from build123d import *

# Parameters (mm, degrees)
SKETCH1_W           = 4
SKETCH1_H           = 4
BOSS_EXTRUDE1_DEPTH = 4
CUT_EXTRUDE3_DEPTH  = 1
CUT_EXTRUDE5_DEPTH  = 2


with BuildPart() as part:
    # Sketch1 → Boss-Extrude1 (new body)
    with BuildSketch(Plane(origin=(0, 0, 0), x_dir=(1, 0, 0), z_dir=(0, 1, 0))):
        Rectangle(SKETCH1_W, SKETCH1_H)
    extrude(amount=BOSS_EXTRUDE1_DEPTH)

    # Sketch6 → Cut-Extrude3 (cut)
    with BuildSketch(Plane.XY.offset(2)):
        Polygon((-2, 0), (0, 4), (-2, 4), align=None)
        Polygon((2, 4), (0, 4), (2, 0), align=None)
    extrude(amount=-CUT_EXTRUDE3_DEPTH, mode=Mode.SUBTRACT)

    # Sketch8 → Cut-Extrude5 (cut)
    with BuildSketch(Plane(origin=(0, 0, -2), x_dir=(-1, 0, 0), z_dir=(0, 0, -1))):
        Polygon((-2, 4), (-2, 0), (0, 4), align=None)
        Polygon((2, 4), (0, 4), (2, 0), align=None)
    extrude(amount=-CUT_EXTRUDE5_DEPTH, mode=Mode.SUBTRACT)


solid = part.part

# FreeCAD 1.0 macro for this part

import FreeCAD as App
import Part
import Sketcher
from FreeCAD import Vector
Q = App.Units.Quantity

doc = App.newDocument("Part")
body = doc.addObject("PartDesign::Body", "Body")

# Sketch on XZ plane
sketch1 = body.newObject("Sketcher::SketchObject", "Sketch")
sketch1.AttachmentSupport = (doc.getObject("XZ_Plane"), [""])
sketch1.MapMode = "FlatFace"
sketch1.addGeometry(Part.LineSegment(Vector(-2, -2, 0), Vector(-2, 2, 0)), False)
sketch1.addGeometry(Part.LineSegment(Vector(-2, 2, 0), Vector(2, 2, 0)), False)
sketch1.addGeometry(Part.LineSegment(Vector(2, 2, 0), Vector(2, -2, 0)), False)
sketch1.addGeometry(Part.LineSegment(Vector(2, -2, 0), Vector(-2, -2, 0)), False)
sketch1.addConstraint(Sketcher.Constraint("Coincident", 0, 2, 1, 1))
sketch1.addConstraint(Sketcher.Constraint("Coincident", 1, 2, 2, 1))
sketch1.addConstraint(Sketcher.Constraint("Coincident", 2, 2, 3, 1))
sketch1.addConstraint(Sketcher.Constraint("Coincident", 3, 2, 0, 1))
sketch1.addConstraint(Sketcher.Constraint("Vertical", 0))
sketch1.addConstraint(Sketcher.Constraint("Horizontal", 1))
sketch1.addConstraint(Sketcher.Constraint("Vertical", 2))
sketch1.addConstraint(Sketcher.Constraint("Horizontal", 3))
sketch1.addConstraint(Sketcher.Constraint("Symmetric", 0, 2, 2, 2, -1, 1))
sketch1.addConstraint(Sketcher.Constraint("Equal", 3, 0))
sketch1.addConstraint(Sketcher.Constraint("DistanceX", 1, 1, 1, 2, Q("4 mm")))
pad1 = body.newObject("PartDesign::Pad", "Pad")
pad1.Profile = sketch1
pad1.Length = 4
pad1.Reversed = True

# Sketch on XY plane
sketch2 = body.newObject("Sketcher::SketchObject", "Sketch001")
sketch2.AttachmentSupport = (doc.getObject("XY_Plane"), [""])
sketch2.MapMode = "FlatFace"
sketch2.AttachmentOffset = App.Placement(Vector(0, 0, 2), App.Rotation())
sketch2.addGeometry(Part.LineSegment(Vector(-2, 0, 0), Vector(0, 4, 0)), False)
sketch2.addGeometry(Part.LineSegment(Vector(0, 4, 0), Vector(-2, 4, 0)), False)
sketch2.addGeometry(Part.LineSegment(Vector(-2, 4, 0), Vector(-2, 0, 0)), False)
sketch2.addGeometry(Part.LineSegment(Vector(2, 4, 0), Vector(0, 4, 0)), False)
sketch2.addGeometry(Part.LineSegment(Vector(0, 4, 0), Vector(2, 0, 0)), False)
sketch2.addGeometry(Part.LineSegment(Vector(2, 0, 0), Vector(2, 4, 0)), False)
sketch2.addConstraint(Sketcher.Constraint("Coincident", 0, 2, 1, 1))
sketch2.addConstraint(Sketcher.Constraint("Coincident", 1, 2, 2, 1))
sketch2.addConstraint(Sketcher.Constraint("Coincident", 2, 2, 0, 1))
sketch2.addConstraint(Sketcher.Constraint("Coincident", 3, 2, 4, 1))
sketch2.addConstraint(Sketcher.Constraint("Coincident", 4, 2, 5, 1))
sketch2.addConstraint(Sketcher.Constraint("Coincident", 5, 2, 3, 1))
sketch2.addConstraint(Sketcher.Constraint("Horizontal", 1))
sketch2.addConstraint(Sketcher.Constraint("Vertical", 2))
sketch2.addConstraint(Sketcher.Constraint("Horizontal", 3))
sketch2.addConstraint(Sketcher.Constraint("Vertical", 5))
sketch2.addConstraint(Sketcher.Constraint("Coincident", 3, 2, 0, 2))
sketch2.addConstraint(Sketcher.Constraint("Symmetric", 2, 2, 4, 2, -1, 1))
sketch2.addConstraint(Sketcher.Constraint("PointOnObject", 0, 2, -2))
sketch2.addConstraint(Sketcher.Constraint("PointOnObject", 2, 2, -1))
sketch2.addConstraint(Sketcher.Constraint("DistanceX", 1, 2, 1, 1, Q("2 mm")))
sketch2.addConstraint(Sketcher.Constraint("DistanceY", 2, 2, 2, 1, Q("4 mm")))
pocket1 = body.newObject("PartDesign::Pocket", "Pocket")
pocket1.Profile = sketch2
pocket1.Length = 1

# Sketch on XY plane
sketch3 = body.newObject("Sketcher::SketchObject", "Sketch002")
sketch3.AttachmentSupport = (doc.getObject("XY_Plane"), [""])
sketch3.MapMode = "FlatFace"
sketch3.AttachmentOffset = App.Placement(Vector(0, 0, -2), App.Rotation())
sketch3.addGeometry(Part.LineSegment(Vector(2, 4, 0), Vector(2, 0, 0)), False)
sketch3.addGeometry(Part.LineSegment(Vector(2, 0, 0), Vector(0, 4, 0)), False)
sketch3.addGeometry(Part.LineSegment(Vector(0, 4, 0), Vector(2, 4, 0)), False)
sketch3.addGeometry(Part.LineSegment(Vector(-2, 4, 0), Vector(0, 4, 0)), False)
sketch3.addGeometry(Part.LineSegment(Vector(0, 4, 0), Vector(-2, 0, 0)), False)
sketch3.addGeometry(Part.LineSegment(Vector(-2, 0, 0), Vector(-2, 4, 0)), False)
sketch3.addConstraint(Sketcher.Constraint("Coincident", 0, 2, 1, 1))
sketch3.addConstraint(Sketcher.Constraint("Coincident", 1, 2, 2, 1))
sketch3.addConstraint(Sketcher.Constraint("Coincident", 2, 2, 0, 1))
sketch3.addConstraint(Sketcher.Constraint("Coincident", 3, 2, 4, 1))
sketch3.addConstraint(Sketcher.Constraint("Coincident", 4, 2, 5, 1))
sketch3.addConstraint(Sketcher.Constraint("Coincident", 5, 2, 3, 1))
sketch3.addConstraint(Sketcher.Constraint("Vertical", 0))
sketch3.addConstraint(Sketcher.Constraint("Horizontal", 2))
sketch3.addConstraint(Sketcher.Constraint("Horizontal", 3))
sketch3.addConstraint(Sketcher.Constraint("Vertical", 5))
sketch3.addConstraint(Sketcher.Constraint("Coincident", 3, 2, 1, 2))
sketch3.addConstraint(Sketcher.Constraint("Symmetric", 0, 2, 4, 2, -1, 1))
sketch3.addConstraint(Sketcher.Constraint("PointOnObject", 0, 2, -1))
sketch3.addConstraint(Sketcher.Constraint("PointOnObject", 1, 2, -2))
sketch3.addConstraint(Sketcher.Constraint("DistanceX", 2, 1, 2, 2, Q("2 mm")))
sketch3.addConstraint(Sketcher.Constraint("DistanceY", 0, 2, 0, 1, Q("4 mm")))
pocket2 = body.newObject("PartDesign::Pocket", "Pocket001")
pocket2.Profile = sketch3
pocket2.Length = 2
pocket2.Reversed = True

doc.recompute()
